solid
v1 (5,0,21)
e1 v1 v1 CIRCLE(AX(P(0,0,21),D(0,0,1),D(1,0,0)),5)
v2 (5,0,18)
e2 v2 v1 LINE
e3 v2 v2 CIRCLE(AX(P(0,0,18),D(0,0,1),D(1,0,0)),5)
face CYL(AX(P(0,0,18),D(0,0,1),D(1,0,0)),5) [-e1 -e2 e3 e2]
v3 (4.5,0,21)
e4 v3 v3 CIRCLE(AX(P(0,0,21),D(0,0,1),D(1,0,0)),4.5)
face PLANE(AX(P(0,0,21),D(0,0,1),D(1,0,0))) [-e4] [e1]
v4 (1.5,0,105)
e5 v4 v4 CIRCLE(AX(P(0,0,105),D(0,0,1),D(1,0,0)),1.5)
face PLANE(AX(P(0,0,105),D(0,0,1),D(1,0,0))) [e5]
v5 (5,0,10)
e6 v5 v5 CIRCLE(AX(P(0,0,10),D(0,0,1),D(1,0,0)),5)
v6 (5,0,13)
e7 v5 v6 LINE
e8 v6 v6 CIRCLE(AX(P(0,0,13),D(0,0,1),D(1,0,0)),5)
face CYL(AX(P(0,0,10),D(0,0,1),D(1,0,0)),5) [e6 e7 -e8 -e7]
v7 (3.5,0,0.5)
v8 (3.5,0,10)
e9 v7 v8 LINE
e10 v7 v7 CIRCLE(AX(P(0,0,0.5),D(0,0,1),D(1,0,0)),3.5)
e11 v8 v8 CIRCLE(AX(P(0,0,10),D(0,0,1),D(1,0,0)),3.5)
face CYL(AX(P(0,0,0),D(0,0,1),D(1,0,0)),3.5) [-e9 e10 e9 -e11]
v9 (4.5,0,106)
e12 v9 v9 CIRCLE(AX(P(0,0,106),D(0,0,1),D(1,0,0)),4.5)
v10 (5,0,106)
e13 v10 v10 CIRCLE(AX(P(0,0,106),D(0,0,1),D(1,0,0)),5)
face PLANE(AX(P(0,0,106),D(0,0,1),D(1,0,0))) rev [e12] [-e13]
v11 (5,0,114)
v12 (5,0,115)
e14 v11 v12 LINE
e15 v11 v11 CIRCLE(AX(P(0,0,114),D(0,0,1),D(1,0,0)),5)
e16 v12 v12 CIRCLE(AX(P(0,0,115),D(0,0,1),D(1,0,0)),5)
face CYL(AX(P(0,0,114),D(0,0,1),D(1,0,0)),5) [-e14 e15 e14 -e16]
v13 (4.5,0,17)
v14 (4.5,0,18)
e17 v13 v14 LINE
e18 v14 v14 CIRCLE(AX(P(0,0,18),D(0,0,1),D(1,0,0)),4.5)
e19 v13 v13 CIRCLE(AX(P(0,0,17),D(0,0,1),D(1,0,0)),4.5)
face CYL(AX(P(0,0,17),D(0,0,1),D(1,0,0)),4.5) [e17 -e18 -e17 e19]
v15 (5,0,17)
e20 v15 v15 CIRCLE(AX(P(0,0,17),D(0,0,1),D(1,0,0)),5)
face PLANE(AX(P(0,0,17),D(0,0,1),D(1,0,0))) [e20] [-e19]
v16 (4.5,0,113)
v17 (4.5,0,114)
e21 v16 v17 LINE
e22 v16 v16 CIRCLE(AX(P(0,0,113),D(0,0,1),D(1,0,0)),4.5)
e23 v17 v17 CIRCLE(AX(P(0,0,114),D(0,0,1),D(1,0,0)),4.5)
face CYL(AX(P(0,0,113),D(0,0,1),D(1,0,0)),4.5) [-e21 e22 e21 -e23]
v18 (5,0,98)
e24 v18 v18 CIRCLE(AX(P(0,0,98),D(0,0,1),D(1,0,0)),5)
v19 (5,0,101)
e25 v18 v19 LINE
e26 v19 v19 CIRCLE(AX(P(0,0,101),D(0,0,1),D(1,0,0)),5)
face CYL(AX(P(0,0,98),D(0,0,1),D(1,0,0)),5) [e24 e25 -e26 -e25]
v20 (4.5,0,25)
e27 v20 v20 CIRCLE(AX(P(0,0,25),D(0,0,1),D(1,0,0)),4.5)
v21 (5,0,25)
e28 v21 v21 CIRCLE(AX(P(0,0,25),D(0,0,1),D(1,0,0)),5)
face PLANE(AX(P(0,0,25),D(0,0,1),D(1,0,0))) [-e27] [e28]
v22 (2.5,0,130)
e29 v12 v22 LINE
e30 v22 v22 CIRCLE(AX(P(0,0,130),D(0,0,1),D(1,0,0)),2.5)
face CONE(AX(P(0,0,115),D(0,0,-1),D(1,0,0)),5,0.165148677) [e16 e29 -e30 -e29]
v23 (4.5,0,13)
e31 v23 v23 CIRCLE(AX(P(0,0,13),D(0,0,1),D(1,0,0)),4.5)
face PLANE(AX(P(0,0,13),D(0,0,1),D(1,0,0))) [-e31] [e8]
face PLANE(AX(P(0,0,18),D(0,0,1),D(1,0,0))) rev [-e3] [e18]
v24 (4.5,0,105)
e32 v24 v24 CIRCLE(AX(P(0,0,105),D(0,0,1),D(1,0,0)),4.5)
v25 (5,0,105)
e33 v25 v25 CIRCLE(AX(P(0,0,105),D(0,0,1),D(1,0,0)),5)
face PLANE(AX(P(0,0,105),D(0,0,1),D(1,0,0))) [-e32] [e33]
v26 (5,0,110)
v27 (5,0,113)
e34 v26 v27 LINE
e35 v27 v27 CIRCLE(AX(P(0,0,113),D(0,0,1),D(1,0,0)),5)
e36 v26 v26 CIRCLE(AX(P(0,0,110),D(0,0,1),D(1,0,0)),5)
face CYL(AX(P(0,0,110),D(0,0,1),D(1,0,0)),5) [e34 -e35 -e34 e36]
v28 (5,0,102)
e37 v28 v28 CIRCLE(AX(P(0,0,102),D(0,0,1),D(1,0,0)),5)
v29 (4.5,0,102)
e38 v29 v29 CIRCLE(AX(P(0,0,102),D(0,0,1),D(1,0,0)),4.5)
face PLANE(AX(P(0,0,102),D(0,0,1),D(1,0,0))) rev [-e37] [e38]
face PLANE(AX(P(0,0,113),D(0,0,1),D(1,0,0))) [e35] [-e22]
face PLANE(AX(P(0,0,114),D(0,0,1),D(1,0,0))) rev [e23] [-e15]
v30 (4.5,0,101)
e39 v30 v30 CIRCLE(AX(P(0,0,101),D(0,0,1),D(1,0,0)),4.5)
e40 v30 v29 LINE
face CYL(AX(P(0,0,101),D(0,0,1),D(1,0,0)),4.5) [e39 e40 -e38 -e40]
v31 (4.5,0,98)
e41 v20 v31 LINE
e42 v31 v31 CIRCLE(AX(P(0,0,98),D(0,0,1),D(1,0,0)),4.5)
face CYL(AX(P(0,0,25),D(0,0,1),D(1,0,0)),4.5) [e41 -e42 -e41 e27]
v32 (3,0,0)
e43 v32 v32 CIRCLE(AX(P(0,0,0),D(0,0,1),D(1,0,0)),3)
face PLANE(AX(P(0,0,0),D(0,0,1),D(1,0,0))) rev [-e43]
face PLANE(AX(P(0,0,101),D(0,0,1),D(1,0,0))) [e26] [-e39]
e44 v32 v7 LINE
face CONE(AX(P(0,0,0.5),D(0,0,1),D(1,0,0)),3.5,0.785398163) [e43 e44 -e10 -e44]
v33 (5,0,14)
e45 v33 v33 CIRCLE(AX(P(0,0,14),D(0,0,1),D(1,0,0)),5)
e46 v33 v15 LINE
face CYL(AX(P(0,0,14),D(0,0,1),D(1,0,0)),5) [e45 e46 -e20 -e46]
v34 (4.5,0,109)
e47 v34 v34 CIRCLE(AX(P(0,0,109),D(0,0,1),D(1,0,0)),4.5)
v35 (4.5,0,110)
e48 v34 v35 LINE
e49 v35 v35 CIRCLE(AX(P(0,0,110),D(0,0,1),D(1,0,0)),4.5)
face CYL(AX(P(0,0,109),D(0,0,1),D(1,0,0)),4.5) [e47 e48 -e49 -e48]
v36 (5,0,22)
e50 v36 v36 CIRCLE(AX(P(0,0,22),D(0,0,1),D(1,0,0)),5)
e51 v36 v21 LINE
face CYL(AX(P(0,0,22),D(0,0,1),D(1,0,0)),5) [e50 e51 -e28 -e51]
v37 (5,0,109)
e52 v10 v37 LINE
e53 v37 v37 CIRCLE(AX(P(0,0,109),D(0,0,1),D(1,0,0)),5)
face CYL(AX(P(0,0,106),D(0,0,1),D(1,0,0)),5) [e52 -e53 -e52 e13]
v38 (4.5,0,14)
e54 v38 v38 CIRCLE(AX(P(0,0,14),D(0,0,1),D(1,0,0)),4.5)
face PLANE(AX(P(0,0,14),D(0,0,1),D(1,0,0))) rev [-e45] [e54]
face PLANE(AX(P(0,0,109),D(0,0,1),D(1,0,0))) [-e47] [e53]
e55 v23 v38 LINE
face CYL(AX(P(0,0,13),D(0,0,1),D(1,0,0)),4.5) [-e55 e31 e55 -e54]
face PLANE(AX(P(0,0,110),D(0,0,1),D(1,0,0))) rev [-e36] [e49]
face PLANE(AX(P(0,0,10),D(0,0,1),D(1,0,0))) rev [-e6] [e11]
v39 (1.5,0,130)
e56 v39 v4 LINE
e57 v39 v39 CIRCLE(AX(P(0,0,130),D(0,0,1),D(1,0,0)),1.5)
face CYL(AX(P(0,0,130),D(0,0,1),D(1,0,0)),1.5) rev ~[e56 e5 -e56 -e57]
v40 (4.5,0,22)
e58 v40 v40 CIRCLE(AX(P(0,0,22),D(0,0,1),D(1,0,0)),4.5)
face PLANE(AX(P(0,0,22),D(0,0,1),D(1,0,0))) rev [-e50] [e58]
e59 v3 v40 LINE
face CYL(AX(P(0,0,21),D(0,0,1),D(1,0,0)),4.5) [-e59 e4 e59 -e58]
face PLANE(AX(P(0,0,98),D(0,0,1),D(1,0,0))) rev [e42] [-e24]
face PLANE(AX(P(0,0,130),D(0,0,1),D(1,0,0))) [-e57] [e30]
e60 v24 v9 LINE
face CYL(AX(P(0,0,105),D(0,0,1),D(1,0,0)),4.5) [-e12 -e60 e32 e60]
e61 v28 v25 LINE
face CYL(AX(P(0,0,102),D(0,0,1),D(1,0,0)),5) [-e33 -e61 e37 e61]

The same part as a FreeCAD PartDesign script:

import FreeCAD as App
import Part
import Sketcher
Q = App.Units.Quantity


def edges_at(feature, points):
    """Names of the edges that pass closest to the given points."""
    edges = feature.Shape.Edges
    near = lambda p: min(range(len(edges)), key=lambda i: edges[i].distToShape(Part.Vertex(*p))[0])
    return sorted({f"Edge{near(p) + 1}" for p in points})

doc = App.newDocument("Part")
params = doc.addObject("Spreadsheet::Sheet", "Params")
for row, (alias, value) in enumerate([
    ("sketch1_height", "130 mm"),
    ("sketch1_height2", "10 mm"),
    ("sketch1_height3", "3 mm"),
    ("sketch1_height4", "1 mm"),
    ("sketch1_height5", "73 mm"),
    ("revolution_angle", "360 deg"),
    ("sketch2_diameter", "3 mm"),
    ("pocket1_length", "25 mm"),
    ("chamfer_size", "0.5 mm"),
], start=1):
    params.set(f"A{row}", alias)
    params.set(f"B{row}", "=" + value)
    params.setAlias(f"B{row}", alias)

body = doc.addObject("PartDesign::Body", "Body")

# Sketch on XZ plane
sketch1 = body.newObject("Sketcher::SketchObject", "Sketch")
sketch1.AttachmentSupport = (doc.getObject("XZ_Plane"), [""])
sketch1.MapMode = "FlatFace"
sketch1.addGeometry(Part.LineSegment(App.Vector(0, 130, 0), App.Vector(0, 0, 0)), False)
sketch1.addGeometry(Part.LineSegment(App.Vector(0, 0, 0), App.Vector(3.5, 0, 0)), False)
sketch1.addGeometry(Part.LineSegment(App.Vector(3.5, 0, 0), App.Vector(3.5, 10, 0)), False)
sketch1.addGeometry(Part.LineSegment(App.Vector(3.5, 10, 0), App.Vector(5, 10, 0)), False)
sketch1.addGeometry(Part.LineSegment(App.Vector(5, 10, 0), App.Vector(5, 13, 0)), False)
sketch1.addGeometry(Part.LineSegment(App.Vector(5, 13, 0), App.Vector(4.5, 13, 0)), False)
sketch1.addGeometry(Part.LineSegment(App.Vector(4.5, 13, 0), App.Vector(4.5, 14, 0)), False)
sketch1.addGeometry(Part.LineSegment(App.Vector(4.5, 14, 0), App.Vector(5, 14, 0)), False)
sketch1.addGeometry(Part.LineSegment(App.Vector(5, 14, 0), App.Vector(5, 17, 0)), False)
sketch1.addGeometry(Part.LineSegment(App.Vector(5, 17, 0), App.Vector(4.5, 17, 0)), False)
sketch1.addGeometry(Part.LineSegment(App.Vector(4.5, 17, 0), App.Vector(4.5, 18, 0)), False)
sketch1.addGeometry(Part.LineSegment(App.Vector(4.5, 18, 0), App.Vector(5, 18, 0)), False)
sketch1.addGeometry(Part.LineSegment(App.Vector(5, 18, 0), App.Vector(5, 21, 0)), False)
sketch1.addGeometry(Part.LineSegment(App.Vector(5, 21, 0), App.Vector(4.5, 21, 0)), False)
sketch1.addGeometry(Part.LineSegment(App.Vector(4.5, 21, 0), App.Vector(4.5, 22, 0)), False)
sketch1.addGeometry(Part.LineSegment(App.Vector(4.5, 22, 0), App.Vector(5, 22, 0)), False)
sketch1.addGeometry(Part.LineSegment(App.Vector(5, 22, 0), App.Vector(5, 25, 0)), False)
sketch1.addGeometry(Part.LineSegment(App.Vector(5, 25, 0), App.Vector(4.5, 25, 0)), False)
sketch1.addGeometry(Part.LineSegment(App.Vector(4.5, 25, 0), App.Vector(4.5, 98, 0)), False)
sketch1.addGeometry(Part.LineSegment(App.Vector(4.5, 98, 0), App.Vector(5, 98, 0)), False)
sketch1.addGeometry(Part.LineSegment(App.Vector(5, 98, 0), App.Vector(5, 101, 0)), False)
sketch1.addGeometry(Part.LineSegment(App.Vector(5, 101, 0), App.Vector(4.5, 101, 0)), False)
sketch1.addGeometry(Part.LineSegment(App.Vector(4.5, 101, 0), App.Vector(4.5, 102, 0)), False)
sketch1.addGeometry(Part.LineSegment(App.Vector(4.5, 102, 0), App.Vector(5, 102, 0)), False)
sketch1.addGeometry(Part.LineSegment(App.Vector(5, 102, 0), App.Vector(5, 105, 0)), False)
sketch1.addGeometry(Part.LineSegment(App.Vector(5, 105, 0), App.Vector(4.5, 105, 0)), False)
sketch1.addGeometry(Part.LineSegment(App.Vector(4.5, 105, 0), App.Vector(4.5, 106, 0)), False)
sketch1.addGeometry(Part.LineSegment(App.Vector(4.5, 106, 0), App.Vector(5, 106, 0)), False)
sketch1.addGeometry(Part.LineSegment(App.Vector(5, 106, 0), App.Vector(5, 109, 0)), False)
sketch1.addGeometry(Part.LineSegment(App.Vector(5, 109, 0), App.Vector(4.5, 109, 0)), False)
sketch1.addGeometry(Part.LineSegment(App.Vector(4.5, 109, 0), App.Vector(4.5, 110, 0)), False)
sketch1.addGeometry(Part.LineSegment(App.Vector(4.5, 110, 0), App.Vector(5, 110, 0)), False)
sketch1.addGeometry(Part.LineSegment(App.Vector(5, 110, 0), App.Vector(5, 113, 0)), False)
sketch1.addGeometry(Part.LineSegment(App.Vector(5, 113, 0), App.Vector(4.5, 113, 0)), False)
sketch1.addGeometry(Part.LineSegment(App.Vector(4.5, 113, 0), App.Vector(4.5, 114, 0)), False)
sketch1.addGeometry(Part.LineSegment(App.Vector(4.5, 114, 0), App.Vector(5, 114, 0)), False)
sketch1.addGeometry(Part.LineSegment(App.Vector(5, 114, 0), App.Vector(5, 115, 0)), False)
sketch1.addGeometry(Part.LineSegment(App.Vector(5, 115, 0), App.Vector(2.5, 130, 0)), False)
sketch1.addGeometry(Part.LineSegment(App.Vector(2.5, 130, 0), App.Vector(0, 130, 0)), False)
sketch1.addConstraint(Sketcher.Constraint("Coincident", 0, 2, 1, 1))
sketch1.addConstraint(Sketcher.Constraint("Coincident", 1, 2, 2, 1))
sketch1.addConstraint(Sketcher.Constraint("Coincident", 2, 2, 3, 1))
sketch1.addConstraint(Sketcher.Constraint("Coincident", 3, 2, 4, 1))
sketch1.addConstraint(Sketcher.Constraint("Coincident", 4, 2, 5, 1))
sketch1.addConstraint(Sketcher.Constraint("Coincident", 5, 2, 6, 1))
sketch1.addConstraint(Sketcher.Constraint("Coincident", 6, 2, 7, 1))
sketch1.addConstraint(Sketcher.Constraint("Coincident", 7, 2, 8, 1))
sketch1.addConstraint(Sketcher.Constraint("Coincident", 8, 2, 9, 1))
sketch1.addConstraint(Sketcher.Constraint("Coincident", 9, 2, 10, 1))
sketch1.addConstraint(Sketcher.Constraint("Coincident", 10, 2, 11, 1))
sketch1.addConstraint(Sketcher.Constraint("Coincident", 11, 2, 12, 1))
sketch1.addConstraint(Sketcher.Constraint("Coincident", 12, 2, 13, 1))
sketch1.addConstraint(Sketcher.Constraint("Coincident", 13, 2, 14, 1))
sketch1.addConstraint(Sketcher.Constraint("Coincident", 14, 2, 15, 1))
sketch1.addConstraint(Sketcher.Constraint("Coincident", 15, 2, 16, 1))
sketch1.addConstraint(Sketcher.Constraint("Coincident", 16, 2, 17, 1))
sketch1.addConstraint(Sketcher.Constraint("Coincident", 17, 2, 18, 1))
sketch1.addConstraint(Sketcher.Constraint("Coincident", 18, 2, 19, 1))
sketch1.addConstraint(Sketcher.Constraint("Coincident", 19, 2, 20, 1))
sketch1.addConstraint(Sketcher.Constraint("Coincident", 20, 2, 21, 1))
sketch1.addConstraint(Sketcher.Constraint("Coincident", 21, 2, 22, 1))
sketch1.addConstraint(Sketcher.Constraint("Coincident", 22, 2, 23, 1))
sketch1.addConstraint(Sketcher.Constraint("Coincident", 23, 2, 24, 1))
sketch1.addConstraint(Sketcher.Constraint("Coincident", 24, 2, 25, 1))
sketch1.addConstraint(Sketcher.Constraint("Coincident", 25, 2, 26, 1))
sketch1.addConstraint(Sketcher.Constraint("Coincident", 26, 2, 27, 1))
sketch1.addConstraint(Sketcher.Constraint("Coincident", 27, 2, 28, 1))
sketch1.addConstraint(Sketcher.Constraint("Coincident", 28, 2, 29, 1))
sketch1.addConstraint(Sketcher.Constraint("Coincident", 29, 2, 30, 1))
sketch1.addConstraint(Sketcher.Constraint("Coincident", 30, 2, 31, 1))
sketch1.addConstraint(Sketcher.Constraint("Coincident", 31, 2, 32, 1))
sketch1.addConstraint(Sketcher.Constraint("Coincident", 32, 2, 33, 1))
sketch1.addConstraint(Sketcher.Constraint("Coincident", 33, 2, 34, 1))
sketch1.addConstraint(Sketcher.Constraint("Coincident", 34, 2, 35, 1))
sketch1.addConstraint(Sketcher.Constraint("Coincident", 35, 2, 36, 1))
sketch1.addConstraint(Sketcher.Constraint("Coincident", 36, 2, 37, 1))
sketch1.addConstraint(Sketcher.Constraint("Coincident", 37, 2, 38, 1))
sketch1.addConstraint(Sketcher.Constraint("Coincident", 38, 2, 0, 1))
sketch1.addConstraint(Sketcher.Constraint("Vertical", 0))
sketch1.addConstraint(Sketcher.Constraint("Horizontal", 1))
sketch1.addConstraint(Sketcher.Constraint("Vertical", 2))
sketch1.addConstraint(Sketcher.Constraint("Horizontal", 3))
sketch1.addConstraint(Sketcher.Constraint("Vertical", 4))
sketch1.addConstraint(Sketcher.Constraint("Horizontal", 5))
sketch1.addConstraint(Sketcher.Constraint("Vertical", 6))
sketch1.addConstraint(Sketcher.Constraint("Horizontal", 7))
sketch1.addConstraint(Sketcher.Constraint("Vertical", 8))
sketch1.addConstraint(Sketcher.Constraint("Horizontal", 9))
sketch1.addConstraint(Sketcher.Constraint("Vertical", 10))
sketch1.addConstraint(Sketcher.Constraint("Horizontal", 11))
sketch1.addConstraint(Sketcher.Constraint("Vertical", 12))
sketch1.addConstraint(Sketcher.Constraint("Horizontal", 13))
sketch1.addConstraint(Sketcher.Constraint("Vertical", 14))
sketch1.addConstraint(Sketcher.Constraint("Horizontal", 15))
sketch1.addConstraint(Sketcher.Constraint("Vertical", 16))
sketch1.addConstraint(Sketcher.Constraint("Horizontal", 17))
sketch1.addConstraint(Sketcher.Constraint("Vertical", 18))
sketch1.addConstraint(Sketcher.Constraint("Horizontal", 19))
sketch1.addConstraint(Sketcher.Constraint("Vertical", 20))
sketch1.addConstraint(Sketcher.Constraint("Horizontal", 21))
sketch1.addConstraint(Sketcher.Constraint("Vertical", 22))
sketch1.addConstraint(Sketcher.Constraint("Horizontal", 23))
sketch1.addConstraint(Sketcher.Constraint("Vertical", 24))
sketch1.addConstraint(Sketcher.Constraint("Horizontal", 25))
sketch1.addConstraint(Sketcher.Constraint("Vertical", 26))
sketch1.addConstraint(Sketcher.Constraint("Horizontal", 27))
sketch1.addConstraint(Sketcher.Constraint("Vertical", 28))
sketch1.addConstraint(Sketcher.Constraint("Horizontal", 29))
sketch1.addConstraint(Sketcher.Constraint("Vertical", 30))
sketch1.addConstraint(Sketcher.Constraint("Horizontal", 31))
sketch1.addConstraint(Sketcher.Constraint("Vertical", 32))
sketch1.addConstraint(Sketcher.Constraint("Horizontal", 33))
sketch1.addConstraint(Sketcher.Constraint("Vertical", 34))
sketch1.addConstraint(Sketcher.Constraint("Horizontal", 35))
sketch1.addConstraint(Sketcher.Constraint("Vertical", 36))
sketch1.addConstraint(Sketcher.Constraint("Horizontal", 38))
sketch1.addConstraint(Sketcher.Constraint("Coincident", 0, 2, -1, 1))
sketch1.addConstraint(Sketcher.Constraint("Vertical", 4, 2, 7, 2))
sketch1.addConstraint(Sketcher.Constraint("Vertical", 6, 2, 9, 2))
sketch1.addConstraint(Sketcher.Constraint("Vertical", 8, 2, 11, 2))
sketch1.addConstraint(Sketcher.Constraint("Vertical", 10, 2, 13, 2))
sketch1.addConstraint(Sketcher.Constraint("Vertical", 12, 2, 15, 2))
sketch1.addConstraint(Sketcher.Constraint("Vertical", 14, 2, 17, 2))
sketch1.addConstraint(Sketcher.Constraint("Vertical", 16, 2, 19, 2))
sketch1.addConstraint(Sketcher.Constraint("Vertical", 18, 2, 21, 2))
sketch1.addConstraint(Sketcher.Constraint("Vertical", 20, 2, 23, 2))
sketch1.addConstraint(Sketcher.Constraint("Vertical", 22, 2, 25, 2))
sketch1.addConstraint(Sketcher.Constraint("Vertical", 24, 2, 27, 2))
sketch1.addConstraint(Sketcher.Constraint("Vertical", 26, 2, 29, 2))
sketch1.addConstraint(Sketcher.Constraint("Vertical", 28, 2, 31, 2))
sketch1.addConstraint(Sketcher.Constraint("Vertical", 30, 2, 33, 2))
sketch1.addConstraint(Sketcher.Constraint("Vertical", 32, 2, 35, 2))
sketch1.addConstraint(Sketcher.Constraint("Equal", 4, 8))
sketch1.addConstraint(Sketcher.Constraint("Equal", 6, 10))
sketch1.addConstraint(Sketcher.Constraint("Equal", 8, 12))
sketch1.addConstraint(Sketcher.Constraint("Equal", 10, 14))
sketch1.addConstraint(Sketcher.Constraint("Equal", 12, 16))
sketch1.addConstraint(Sketcher.Constraint("Equal", 16, 20))
sketch1.addConstraint(Sketcher.Constraint("Equal", 14, 22))
sketch1.addConstraint(Sketcher.Constraint("Equal", 20, 24))
sketch1.addConstraint(Sketcher.Constraint("Equal", 22, 26))
sketch1.addConstraint(Sketcher.Constraint("Equal", 24, 28))
sketch1.addConstraint(Sketcher.Constraint("Equal", 26, 30))
sketch1.addConstraint(Sketcher.Constraint("Equal", 28, 32))
sketch1.addConstraint(Sketcher.Constraint("Equal", 30, 34))
sketch1.addConstraint(Sketcher.Constraint("Equal", 34, 36))
sketch1.addConstraint(Sketcher.Constraint("DistanceY", 0, 2, 0, 1, Q("130 mm")))
sketch1.addConstraint(Sketcher.Constraint("DistanceY", 2, 1, 2, 2, Q("10 mm")))
sketch1.addConstraint(Sketcher.Constraint("DistanceY", 4, 1, 4, 2, Q("3 mm")))
sketch1.addConstraint(Sketcher.Constraint("DistanceY", 6, 1, 6, 2, Q("1 mm")))
sketch1.addConstraint(Sketcher.Constraint("DistanceY", 18, 1, 18, 2, Q("73 mm")))
sketch1.addConstraint(Sketcher.Constraint("DistanceX", 1, 1, 1, 2, Q("3.5 mm")))
sketch1.addConstraint(Sketcher.Constraint("DistanceX", 3, 1, 3, 2, Q("1.5 mm")))
sketch1.addConstraint(Sketcher.Constraint("DistanceX", 5, 2, 5, 1, Q("0.5 mm")))
sketch1.addConstraint(Sketcher.Constraint("DistanceX", 38, 2, 38, 1, Q("2.5 mm")))
sketch1.setExpression("Constraints[107]", "Params.sketch1_height")
sketch1.setExpression("Constraints[108]", "Params.sketch1_height2")
sketch1.setExpression("Constraints[109]", "Params.sketch1_height3")
sketch1.setExpression("Constraints[110]", "Params.sketch1_height4")
sketch1.setExpression("Constraints[111]", "Params.sketch1_height5")
revolution = body.newObject("PartDesign::Revolution", "Revolution")
revolution.Profile = sketch1
revolution.ReferenceAxis = (sketch1, ["V_Axis"])
revolution.setExpression("Angle", "Params.revolution_angle")

# Sketch on XY plane
sketch2 = body.newObject("Sketcher::SketchObject", "Sketch001")
sketch2.AttachmentSupport = (doc.getObject("XY_Plane"), [""])
sketch2.MapMode = "FlatFace"
sketch2.AttachmentOffset = App.Placement(App.Vector(0, 0, 130), App.Rotation())
sketch2.addGeometry(Part.Circle(App.Vector(0, 0, 0), App.Vector(0, 0, 1), 1.5), False)
sketch2.addConstraint(Sketcher.Constraint("Coincident", 0, 3, -1, 1))
sketch2.addConstraint(Sketcher.Constraint("Diameter", 0, Q("3 mm")))
sketch2.setExpression("Constraints[1]", "Params.sketch2_diameter")
pocket1 = body.newObject("PartDesign::Pocket", "Pocket")
pocket1.Profile = sketch2
pocket1.setExpression("Length", "Params.pocket1_length")
doc.recompute()

chamfer = body.newObject("PartDesign::Chamfer", "Chamfer")
chamfer.Base = (pocket1, edges_at(pocket1, [(-3.5, 0, 0)]))
chamfer.setExpression("Size", "Params.chamfer_size")

doc.recompute()
